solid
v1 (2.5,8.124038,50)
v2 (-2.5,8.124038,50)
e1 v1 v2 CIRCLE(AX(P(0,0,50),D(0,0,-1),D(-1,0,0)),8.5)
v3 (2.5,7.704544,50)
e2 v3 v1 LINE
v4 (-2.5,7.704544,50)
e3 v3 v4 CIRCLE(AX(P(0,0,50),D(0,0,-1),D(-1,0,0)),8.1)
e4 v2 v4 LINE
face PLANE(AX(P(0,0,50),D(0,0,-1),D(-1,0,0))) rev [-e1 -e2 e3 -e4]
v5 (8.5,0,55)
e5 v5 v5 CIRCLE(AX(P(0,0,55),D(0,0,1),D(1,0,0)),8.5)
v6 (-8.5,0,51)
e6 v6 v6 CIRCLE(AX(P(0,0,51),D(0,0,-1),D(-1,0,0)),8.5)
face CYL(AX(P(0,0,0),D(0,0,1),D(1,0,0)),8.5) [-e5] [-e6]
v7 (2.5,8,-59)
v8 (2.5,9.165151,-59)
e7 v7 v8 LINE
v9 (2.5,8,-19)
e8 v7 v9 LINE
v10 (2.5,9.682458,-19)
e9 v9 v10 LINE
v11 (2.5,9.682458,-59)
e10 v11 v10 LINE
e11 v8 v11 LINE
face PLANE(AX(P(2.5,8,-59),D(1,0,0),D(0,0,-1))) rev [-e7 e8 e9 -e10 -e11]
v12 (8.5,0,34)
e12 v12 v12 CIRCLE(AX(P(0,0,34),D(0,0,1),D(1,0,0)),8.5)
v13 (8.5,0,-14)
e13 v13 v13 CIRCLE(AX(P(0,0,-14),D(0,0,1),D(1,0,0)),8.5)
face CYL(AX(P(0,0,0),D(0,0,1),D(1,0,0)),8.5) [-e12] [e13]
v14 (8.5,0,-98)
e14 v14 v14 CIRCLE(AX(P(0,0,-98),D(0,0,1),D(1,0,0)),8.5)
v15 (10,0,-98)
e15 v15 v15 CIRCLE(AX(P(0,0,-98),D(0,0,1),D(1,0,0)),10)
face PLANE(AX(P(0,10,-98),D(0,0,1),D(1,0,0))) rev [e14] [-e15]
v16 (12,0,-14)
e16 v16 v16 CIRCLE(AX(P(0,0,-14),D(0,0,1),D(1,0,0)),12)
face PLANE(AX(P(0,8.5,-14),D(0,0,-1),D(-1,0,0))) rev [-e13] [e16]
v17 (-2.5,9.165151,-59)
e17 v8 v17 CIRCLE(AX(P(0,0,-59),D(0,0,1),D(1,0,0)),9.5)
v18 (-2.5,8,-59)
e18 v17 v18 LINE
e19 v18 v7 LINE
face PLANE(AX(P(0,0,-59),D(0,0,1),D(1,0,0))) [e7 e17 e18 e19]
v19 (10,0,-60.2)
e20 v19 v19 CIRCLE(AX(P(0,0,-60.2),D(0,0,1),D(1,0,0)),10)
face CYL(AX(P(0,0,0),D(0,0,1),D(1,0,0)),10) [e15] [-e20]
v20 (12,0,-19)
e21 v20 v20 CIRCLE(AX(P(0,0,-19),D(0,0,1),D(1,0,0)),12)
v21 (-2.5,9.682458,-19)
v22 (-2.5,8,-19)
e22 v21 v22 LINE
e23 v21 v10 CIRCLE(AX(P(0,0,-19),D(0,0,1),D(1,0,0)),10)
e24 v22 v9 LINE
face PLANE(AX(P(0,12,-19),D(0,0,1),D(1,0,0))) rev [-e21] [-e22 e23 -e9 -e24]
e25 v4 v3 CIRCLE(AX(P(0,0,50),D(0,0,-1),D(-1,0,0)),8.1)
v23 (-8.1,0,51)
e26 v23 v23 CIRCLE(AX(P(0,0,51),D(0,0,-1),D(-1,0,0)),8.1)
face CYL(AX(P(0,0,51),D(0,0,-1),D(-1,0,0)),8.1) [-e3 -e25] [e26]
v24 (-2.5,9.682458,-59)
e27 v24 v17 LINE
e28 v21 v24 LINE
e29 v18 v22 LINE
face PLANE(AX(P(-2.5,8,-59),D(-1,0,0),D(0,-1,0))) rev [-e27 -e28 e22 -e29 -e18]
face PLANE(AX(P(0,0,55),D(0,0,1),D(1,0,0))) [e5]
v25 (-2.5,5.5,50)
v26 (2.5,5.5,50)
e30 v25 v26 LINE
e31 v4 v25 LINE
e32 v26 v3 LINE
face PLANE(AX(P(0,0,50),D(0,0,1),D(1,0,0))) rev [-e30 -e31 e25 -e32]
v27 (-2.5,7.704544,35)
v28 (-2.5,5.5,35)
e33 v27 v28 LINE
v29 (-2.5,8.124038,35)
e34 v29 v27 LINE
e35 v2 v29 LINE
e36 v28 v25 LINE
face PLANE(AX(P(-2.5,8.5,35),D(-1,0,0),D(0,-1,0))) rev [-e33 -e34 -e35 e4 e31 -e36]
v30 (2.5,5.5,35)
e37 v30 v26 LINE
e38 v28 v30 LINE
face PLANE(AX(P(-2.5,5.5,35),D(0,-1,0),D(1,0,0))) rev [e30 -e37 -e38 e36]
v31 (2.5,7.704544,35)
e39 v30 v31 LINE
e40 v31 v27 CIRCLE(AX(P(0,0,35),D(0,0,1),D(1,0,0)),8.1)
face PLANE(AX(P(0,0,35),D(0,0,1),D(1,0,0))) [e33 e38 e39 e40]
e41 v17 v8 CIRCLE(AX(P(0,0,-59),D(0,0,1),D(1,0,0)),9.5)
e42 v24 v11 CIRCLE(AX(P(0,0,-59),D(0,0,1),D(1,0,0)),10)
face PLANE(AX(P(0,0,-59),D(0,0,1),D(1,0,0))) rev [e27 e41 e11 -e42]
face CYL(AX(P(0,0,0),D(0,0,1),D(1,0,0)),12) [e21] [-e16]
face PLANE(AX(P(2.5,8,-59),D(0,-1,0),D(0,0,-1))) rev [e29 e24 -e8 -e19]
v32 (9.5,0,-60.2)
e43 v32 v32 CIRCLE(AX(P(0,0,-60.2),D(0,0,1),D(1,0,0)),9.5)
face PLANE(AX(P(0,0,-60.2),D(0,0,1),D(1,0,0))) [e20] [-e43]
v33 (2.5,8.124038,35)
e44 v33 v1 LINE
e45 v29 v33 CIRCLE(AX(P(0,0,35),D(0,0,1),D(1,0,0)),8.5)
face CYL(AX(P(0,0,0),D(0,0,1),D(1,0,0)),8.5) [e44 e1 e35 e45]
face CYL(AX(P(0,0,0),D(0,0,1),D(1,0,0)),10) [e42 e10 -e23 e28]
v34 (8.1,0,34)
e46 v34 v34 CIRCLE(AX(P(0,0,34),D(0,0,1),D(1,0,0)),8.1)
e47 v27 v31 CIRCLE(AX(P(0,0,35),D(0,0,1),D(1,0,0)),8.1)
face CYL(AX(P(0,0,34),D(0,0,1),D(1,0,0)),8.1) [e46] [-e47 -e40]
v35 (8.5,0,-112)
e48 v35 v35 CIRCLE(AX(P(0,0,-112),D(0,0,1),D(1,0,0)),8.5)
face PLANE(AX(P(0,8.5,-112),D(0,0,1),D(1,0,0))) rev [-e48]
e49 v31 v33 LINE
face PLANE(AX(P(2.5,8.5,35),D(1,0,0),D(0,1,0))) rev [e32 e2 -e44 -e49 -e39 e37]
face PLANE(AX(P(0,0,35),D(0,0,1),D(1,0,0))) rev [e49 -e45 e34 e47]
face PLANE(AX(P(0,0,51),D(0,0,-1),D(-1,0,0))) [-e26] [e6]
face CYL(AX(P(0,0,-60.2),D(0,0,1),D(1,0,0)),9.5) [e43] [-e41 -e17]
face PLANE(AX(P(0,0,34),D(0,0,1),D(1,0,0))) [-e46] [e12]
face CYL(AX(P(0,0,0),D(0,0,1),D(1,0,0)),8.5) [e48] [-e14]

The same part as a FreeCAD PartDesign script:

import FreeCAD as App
import Part
import Sketcher

V = App.Vector


def add_polygon(sketch, points):
    """Adds a closed chain of lines whose ends are joined by coincident constraints."""
    first, n = sketch.GeometryCount, len(points)
    for a, b in zip(points, points[1:] + points[:1]):
        sketch.addGeometry(Part.LineSegment(App.Vector(*a, 0), App.Vector(*b, 0)), False)
    for i in range(n):
        sketch.addConstraint(Sketcher.Constraint("Coincident", first + i, 2, first + (i + 1) % n, 1))

doc = App.newDocument("Part")
params = doc.addObject("Spreadsheet::Sheet", "Params")
for row, (alias, value) in enumerate([
    ("sketch1_width", "2 mm"),
    ("sketch1_height", "112 mm"),
    ("sketch1_height2", "14 mm"),
    ("sketch1_height3", "79 mm"),
    ("sketch1_width2", "8.5 mm"),
    ("revolution_angle", "360 deg"),
    ("sketch2_width", "5 mm"),
    ("sketch2_height", "8 mm"),
    ("pocket1_length", "40 mm"),
    ("sketch3_diameter", "25 mm"),
    ("sketch3_diameter2", "19 mm"),
    ("pocket2_length", "1.2 mm"),
    ("sketch4_diameter", "17 mm"),
    ("pad1_length", "50 mm"),
    ("sketch5_width", "5 mm"),
    ("sketch5_height", "3 mm"),
    ("pocket3_length", "15 mm"),
    ("sketch6_diameter", "17 mm"),
    ("pad2_length", "5 mm"),
    ("sketch7_diameter", "20.2 mm"),
    ("sketch7_diameter2", "16.2 mm"),
    ("pocket4_length", "1 mm"),
    ("sketch8_diameter", "20.2 mm"),
    ("sketch8_diameter2", "16.2 mm"),
    ("pocket5_length", "1 mm"),
], start=1):
    params.set(f"A{row}", alias)
    params.set(f"B{row}", "=" + value)
    params.setAlias(f"B{row}", alias)

body = doc.addObject("PartDesign::Body", "Body")

# Sketch on YZ plane
sketch1 = doc.addObject("Sketcher::SketchObject", "Sketch")
body.addObject(sketch1)
sketch1.AttachmentSupport = (doc.YZ_Plane, [""])
sketch1.MapMode = "FlatFace"
add_polygon(sketch1, [(8.5, 0), (0, 0), (0, -112), (8.5, -112), (8.5, -98), (10, -98), (10, -19), (12, -19), (12, -14), (8.5, -14)])  # lines 0-9
sketch1.addConstraint([
    Sketcher.Constraint("Horizontal", 0),
    Sketcher.Constraint("Vertical", 1),
    Sketcher.Constraint("Horizontal", 2),
    Sketcher.Constraint("Vertical", 3),
    Sketcher.Constraint("Horizontal", 4),
    Sketcher.Constraint("Vertical", 5),
    Sketcher.Constraint("Horizontal", 6),
    Sketcher.Constraint("Vertical", 7),
    Sketcher.Constraint("Horizontal", 8),
    Sketcher.Constraint("Vertical", 9),
    Sketcher.Constraint("Coincident", 0, 2, -1, 1),
    Sketcher.Constraint("Vertical", 3, 2, 8, 2),
    Sketcher.Constraint("Equal", 3, 9),
    Sketcher.Constraint("DistanceX", 6, 1, 6, 2, 2.0),
    Sketcher.Constraint("DistanceY", 1, 2, 1, 1, 112.0),
    Sketcher.Constraint("DistanceY", 3, 1, 3, 2, 14.0),
    Sketcher.Constraint("DistanceY", 5, 1, 5, 2, 79.0),
    Sketcher.Constraint("DistanceX", 0, 2, 0, 1, 8.5),
    Sketcher.Constraint("DistanceX", 4, 1, 4, 2, 1.5),
])
sketch1.setExpression("Constraints[23]", "Params.sketch1_width")
sketch1.setExpression("Constraints[24]", "Params.sketch1_height")
sketch1.setExpression("Constraints[25]", "Params.sketch1_height2")
sketch1.setExpression("Constraints[26]", "Params.sketch1_height3")
sketch1.setExpression("Constraints[27]", "Params.sketch1_width2")
revolution = doc.addObject("PartDesign::Revolution", "Revolution")
body.addObject(revolution)
revolution.Profile = sketch1
revolution.ReferenceAxis = (sketch1, ["V_Axis"])
revolution.setExpression("Angle", "Params.revolution_angle")

# Sketch on XY plane
sketch2 = doc.addObject("Sketcher::SketchObject", "Sketch001")
body.addObject(sketch2)
sketch2.AttachmentSupport = (doc.XY_Plane, [""])
sketch2.MapMode = "FlatFace"
sketch2.AttachmentOffset = App.Placement(V(0, 0, -19), App.Rotation())
add_polygon(sketch2, [(-2.5, 16), (-2.5, 8), (2.5, 8), (2.5, 16)])  # lines 0-3
sketch2.addConstraint([
    Sketcher.Constraint("Vertical", 0),
    Sketcher.Constraint("Horizontal", 1),
    Sketcher.Constraint("Vertical", 2),
    Sketcher.Constraint("Horizontal", 3),
    Sketcher.Constraint("DistanceX", 1, 1, 1, 2, 5.0),
    Sketcher.Constraint("DistanceY", 0, 2, 0, 1, 8.0),
    Sketcher.Constraint("DistanceY", -1, 1, 0, 2, 8.0),
    Sketcher.Constraint("DistanceX", 0, 2, -1, 1, 2.5),
])
sketch2.setExpression("Constraints[8]", "Params.sketch2_width")
sketch2.setExpression("Constraints[9]", "Params.sketch2_height")
pocket1 = doc.addObject("PartDesign::Pocket", "Pocket")
body.addObject(pocket1)
pocket1.Profile = sketch2
pocket1.setExpression("Length", "Params.pocket1_length")

# Sketch on XY plane
sketch3 = doc.addObject("Sketcher::SketchObject", "Sketch002")
body.addObject(sketch3)
sketch3.AttachmentSupport = (doc.XY_Plane, [""])
sketch3.MapMode = "FlatFace"
sketch3.AttachmentOffset = App.Placement(V(0, 0, -59), App.Rotation())
sketch3.addGeometry([
    Part.Circle(V(0, 0, 0), V(0, 0, 1), 12.5),
    Part.Circle(V(0, 0, 0), V(0, 0, 1), 9.5),
], False)
sketch3.addConstraint([
    Sketcher.Constraint("Coincident", 0, 3, -1, 1),
    Sketcher.Constraint("Coincident", 1, 3, -1, 1),
    Sketcher.Constraint("Diameter", 0, 25.0),
    Sketcher.Constraint("Diameter", 1, 19.0),
])
sketch3.setExpression("Constraints[2]", "Params.sketch3_diameter")
sketch3.setExpression("Constraints[3]", "Params.sketch3_diameter2")
pocket2 = doc.addObject("PartDesign::Pocket", "Pocket001")
body.addObject(pocket2)
pocket2.Profile = sketch3
pocket2.setExpression("Length", "Params.pocket2_length")

# Sketch on XY plane
sketch4 = doc.addObject("Sketcher::SketchObject", "Sketch003")
body.addObject(sketch4)
sketch4.AttachmentSupport = (doc.XY_Plane, [""])
sketch4.MapMode = "FlatFace"
sketch4.addGeometry(Part.Circle(V(0, 0, 0), V(0, 0, 1), 8.5), False)
sketch4.addConstraint([
    Sketcher.Constraint("Coincident", 0, 3, -1, 1),
    Sketcher.Constraint("Diameter", 0, 17.0),
])
sketch4.setExpression("Constraints[1]", "Params.sketch4_diameter")
pad1 = doc.addObject("PartDesign::Pad", "Pad")
body.addObject(pad1)
pad1.Profile = sketch4
pad1.setExpression("Length", "Params.pad1_length")

# Sketch on XY plane
sketch5 = doc.addObject("Sketcher::SketchObject", "Sketch004")
body.addObject(sketch5)
sketch5.AttachmentSupport = (doc.XY_Plane, [""])
sketch5.MapMode = "FlatFace"
sketch5.AttachmentOffset = App.Placement(V(0, 0, 50), App.Rotation())
add_polygon(sketch5, [(-2.5, 8.5), (-2.5, 5.5), (2.5, 5.5), (2.5, 8.5)])  # lines 0-3
sketch5.addConstraint([
    Sketcher.Constraint("Vertical", 0),
    Sketcher.Constraint("Horizontal", 1),
    Sketcher.Constraint("Vertical", 2),
    Sketcher.Constraint("Horizontal", 3),
    Sketcher.Constraint("DistanceX", 1, 1, 1, 2, 5.0),
    Sketcher.Constraint("DistanceY", 0, 2, 0, 1, 3.0),
    Sketcher.Constraint("DistanceX", 0, 2, -1, 1, 2.5),
    Sketcher.Constraint("DistanceY", -1, 1, 0, 2, 5.5),
])
sketch5.setExpression("Constraints[8]", "Params.sketch5_width")
sketch5.setExpression("Constraints[9]", "Params.sketch5_height")
pocket3 = doc.addObject("PartDesign::Pocket", "Pocket002")
body.addObject(pocket3)
pocket3.Profile = sketch5
pocket3.setExpression("Length", "Params.pocket3_length")

# Sketch on XY plane
sketch6 = doc.addObject("Sketcher::SketchObject", "Sketch005")
body.addObject(sketch6)
sketch6.AttachmentSupport = (doc.XY_Plane, [""])
sketch6.MapMode = "FlatFace"
sketch6.AttachmentOffset = App.Placement(V(0, 0, 50), App.Rotation())
sketch6.addGeometry(Part.Circle(V(0, 0, 0), V(0, 0, 1), 8.5), False)
sketch6.addConstraint([
    Sketcher.Constraint("Coincident", 0, 3, -1, 1),
    Sketcher.Constraint("Diameter", 0, 17.0),
])
sketch6.setExpression("Constraints[1]", "Params.sketch6_diameter")
pad2 = doc.addObject("PartDesign::Pad", "Pad001")
body.addObject(pad2)
pad2.Profile = sketch6
pad2.setExpression("Length", "Params.pad2_length")

# Sketch on XY plane
sketch7 = doc.addObject("Sketcher::SketchObject", "Sketch006")
body.addObject(sketch7)
sketch7.AttachmentSupport = (doc.XY_Plane, [""])
sketch7.MapMode = "FlatFace"
sketch7.AttachmentOffset = App.Placement(V(0, 0, 50), App.Rotation())
sketch7.addGeometry([
    Part.Circle(V(0, 0, 0), V(0, 0, 1), 10.1),
    Part.Circle(V(0, 0, 0), V(0, 0, 1), 8.1),
], False)
sketch7.addConstraint([
    Sketcher.Constraint("Coincident", 0, 3, -1, 1),
    Sketcher.Constraint("Coincident", 1, 3, -1, 1),
    Sketcher.Constraint("Diameter", 0, 20.2),
    Sketcher.Constraint("Diameter", 1, 16.2),
])
sketch7.setExpression("Constraints[2]", "Params.sketch7_diameter")
sketch7.setExpression("Constraints[3]", "Params.sketch7_diameter2")
pocket4 = doc.addObject("PartDesign::Pocket", "Pocket003")
body.addObject(pocket4)
pocket4.Profile = sketch7
pocket4.setExpression("Length", "Params.pocket4_length")
pocket4.Reversed = True

# Sketch on XY plane
sketch8 = doc.addObject("Sketcher::SketchObject", "Sketch007")
body.addObject(sketch8)
sketch8.AttachmentSupport = (doc.XY_Plane, [""])
sketch8.MapMode = "FlatFace"
sketch8.AttachmentOffset = App.Placement(V(0, 0, 34), App.Rotation())
sketch8.addGeometry([
    Part.Circle(V(0, 0, 0), V(0, 0, 1), 10.1),
    Part.Circle(V(0, 0, 0), V(0, 0, 1), 8.1),
], False)
sketch8.addConstraint([
    Sketcher.Constraint("Coincident", 0, 3, -1, 1),
    Sketcher.Constraint("Coincident", 1, 3, -1, 1),
    Sketcher.Constraint("Diameter", 0, 20.2),
    Sketcher.Constraint("Diameter", 1, 16.2),
])
sketch8.setExpression("Constraints[2]", "Params.sketch8_diameter")
sketch8.setExpression("Constraints[3]", "Params.sketch8_diameter2")
pocket5 = doc.addObject("PartDesign::Pocket", "Pocket004")
body.addObject(pocket5)
pocket5.Profile = sketch8
pocket5.setExpression("Length", "Params.pocket5_length")
pocket5.Reversed = True

doc.recompute()
